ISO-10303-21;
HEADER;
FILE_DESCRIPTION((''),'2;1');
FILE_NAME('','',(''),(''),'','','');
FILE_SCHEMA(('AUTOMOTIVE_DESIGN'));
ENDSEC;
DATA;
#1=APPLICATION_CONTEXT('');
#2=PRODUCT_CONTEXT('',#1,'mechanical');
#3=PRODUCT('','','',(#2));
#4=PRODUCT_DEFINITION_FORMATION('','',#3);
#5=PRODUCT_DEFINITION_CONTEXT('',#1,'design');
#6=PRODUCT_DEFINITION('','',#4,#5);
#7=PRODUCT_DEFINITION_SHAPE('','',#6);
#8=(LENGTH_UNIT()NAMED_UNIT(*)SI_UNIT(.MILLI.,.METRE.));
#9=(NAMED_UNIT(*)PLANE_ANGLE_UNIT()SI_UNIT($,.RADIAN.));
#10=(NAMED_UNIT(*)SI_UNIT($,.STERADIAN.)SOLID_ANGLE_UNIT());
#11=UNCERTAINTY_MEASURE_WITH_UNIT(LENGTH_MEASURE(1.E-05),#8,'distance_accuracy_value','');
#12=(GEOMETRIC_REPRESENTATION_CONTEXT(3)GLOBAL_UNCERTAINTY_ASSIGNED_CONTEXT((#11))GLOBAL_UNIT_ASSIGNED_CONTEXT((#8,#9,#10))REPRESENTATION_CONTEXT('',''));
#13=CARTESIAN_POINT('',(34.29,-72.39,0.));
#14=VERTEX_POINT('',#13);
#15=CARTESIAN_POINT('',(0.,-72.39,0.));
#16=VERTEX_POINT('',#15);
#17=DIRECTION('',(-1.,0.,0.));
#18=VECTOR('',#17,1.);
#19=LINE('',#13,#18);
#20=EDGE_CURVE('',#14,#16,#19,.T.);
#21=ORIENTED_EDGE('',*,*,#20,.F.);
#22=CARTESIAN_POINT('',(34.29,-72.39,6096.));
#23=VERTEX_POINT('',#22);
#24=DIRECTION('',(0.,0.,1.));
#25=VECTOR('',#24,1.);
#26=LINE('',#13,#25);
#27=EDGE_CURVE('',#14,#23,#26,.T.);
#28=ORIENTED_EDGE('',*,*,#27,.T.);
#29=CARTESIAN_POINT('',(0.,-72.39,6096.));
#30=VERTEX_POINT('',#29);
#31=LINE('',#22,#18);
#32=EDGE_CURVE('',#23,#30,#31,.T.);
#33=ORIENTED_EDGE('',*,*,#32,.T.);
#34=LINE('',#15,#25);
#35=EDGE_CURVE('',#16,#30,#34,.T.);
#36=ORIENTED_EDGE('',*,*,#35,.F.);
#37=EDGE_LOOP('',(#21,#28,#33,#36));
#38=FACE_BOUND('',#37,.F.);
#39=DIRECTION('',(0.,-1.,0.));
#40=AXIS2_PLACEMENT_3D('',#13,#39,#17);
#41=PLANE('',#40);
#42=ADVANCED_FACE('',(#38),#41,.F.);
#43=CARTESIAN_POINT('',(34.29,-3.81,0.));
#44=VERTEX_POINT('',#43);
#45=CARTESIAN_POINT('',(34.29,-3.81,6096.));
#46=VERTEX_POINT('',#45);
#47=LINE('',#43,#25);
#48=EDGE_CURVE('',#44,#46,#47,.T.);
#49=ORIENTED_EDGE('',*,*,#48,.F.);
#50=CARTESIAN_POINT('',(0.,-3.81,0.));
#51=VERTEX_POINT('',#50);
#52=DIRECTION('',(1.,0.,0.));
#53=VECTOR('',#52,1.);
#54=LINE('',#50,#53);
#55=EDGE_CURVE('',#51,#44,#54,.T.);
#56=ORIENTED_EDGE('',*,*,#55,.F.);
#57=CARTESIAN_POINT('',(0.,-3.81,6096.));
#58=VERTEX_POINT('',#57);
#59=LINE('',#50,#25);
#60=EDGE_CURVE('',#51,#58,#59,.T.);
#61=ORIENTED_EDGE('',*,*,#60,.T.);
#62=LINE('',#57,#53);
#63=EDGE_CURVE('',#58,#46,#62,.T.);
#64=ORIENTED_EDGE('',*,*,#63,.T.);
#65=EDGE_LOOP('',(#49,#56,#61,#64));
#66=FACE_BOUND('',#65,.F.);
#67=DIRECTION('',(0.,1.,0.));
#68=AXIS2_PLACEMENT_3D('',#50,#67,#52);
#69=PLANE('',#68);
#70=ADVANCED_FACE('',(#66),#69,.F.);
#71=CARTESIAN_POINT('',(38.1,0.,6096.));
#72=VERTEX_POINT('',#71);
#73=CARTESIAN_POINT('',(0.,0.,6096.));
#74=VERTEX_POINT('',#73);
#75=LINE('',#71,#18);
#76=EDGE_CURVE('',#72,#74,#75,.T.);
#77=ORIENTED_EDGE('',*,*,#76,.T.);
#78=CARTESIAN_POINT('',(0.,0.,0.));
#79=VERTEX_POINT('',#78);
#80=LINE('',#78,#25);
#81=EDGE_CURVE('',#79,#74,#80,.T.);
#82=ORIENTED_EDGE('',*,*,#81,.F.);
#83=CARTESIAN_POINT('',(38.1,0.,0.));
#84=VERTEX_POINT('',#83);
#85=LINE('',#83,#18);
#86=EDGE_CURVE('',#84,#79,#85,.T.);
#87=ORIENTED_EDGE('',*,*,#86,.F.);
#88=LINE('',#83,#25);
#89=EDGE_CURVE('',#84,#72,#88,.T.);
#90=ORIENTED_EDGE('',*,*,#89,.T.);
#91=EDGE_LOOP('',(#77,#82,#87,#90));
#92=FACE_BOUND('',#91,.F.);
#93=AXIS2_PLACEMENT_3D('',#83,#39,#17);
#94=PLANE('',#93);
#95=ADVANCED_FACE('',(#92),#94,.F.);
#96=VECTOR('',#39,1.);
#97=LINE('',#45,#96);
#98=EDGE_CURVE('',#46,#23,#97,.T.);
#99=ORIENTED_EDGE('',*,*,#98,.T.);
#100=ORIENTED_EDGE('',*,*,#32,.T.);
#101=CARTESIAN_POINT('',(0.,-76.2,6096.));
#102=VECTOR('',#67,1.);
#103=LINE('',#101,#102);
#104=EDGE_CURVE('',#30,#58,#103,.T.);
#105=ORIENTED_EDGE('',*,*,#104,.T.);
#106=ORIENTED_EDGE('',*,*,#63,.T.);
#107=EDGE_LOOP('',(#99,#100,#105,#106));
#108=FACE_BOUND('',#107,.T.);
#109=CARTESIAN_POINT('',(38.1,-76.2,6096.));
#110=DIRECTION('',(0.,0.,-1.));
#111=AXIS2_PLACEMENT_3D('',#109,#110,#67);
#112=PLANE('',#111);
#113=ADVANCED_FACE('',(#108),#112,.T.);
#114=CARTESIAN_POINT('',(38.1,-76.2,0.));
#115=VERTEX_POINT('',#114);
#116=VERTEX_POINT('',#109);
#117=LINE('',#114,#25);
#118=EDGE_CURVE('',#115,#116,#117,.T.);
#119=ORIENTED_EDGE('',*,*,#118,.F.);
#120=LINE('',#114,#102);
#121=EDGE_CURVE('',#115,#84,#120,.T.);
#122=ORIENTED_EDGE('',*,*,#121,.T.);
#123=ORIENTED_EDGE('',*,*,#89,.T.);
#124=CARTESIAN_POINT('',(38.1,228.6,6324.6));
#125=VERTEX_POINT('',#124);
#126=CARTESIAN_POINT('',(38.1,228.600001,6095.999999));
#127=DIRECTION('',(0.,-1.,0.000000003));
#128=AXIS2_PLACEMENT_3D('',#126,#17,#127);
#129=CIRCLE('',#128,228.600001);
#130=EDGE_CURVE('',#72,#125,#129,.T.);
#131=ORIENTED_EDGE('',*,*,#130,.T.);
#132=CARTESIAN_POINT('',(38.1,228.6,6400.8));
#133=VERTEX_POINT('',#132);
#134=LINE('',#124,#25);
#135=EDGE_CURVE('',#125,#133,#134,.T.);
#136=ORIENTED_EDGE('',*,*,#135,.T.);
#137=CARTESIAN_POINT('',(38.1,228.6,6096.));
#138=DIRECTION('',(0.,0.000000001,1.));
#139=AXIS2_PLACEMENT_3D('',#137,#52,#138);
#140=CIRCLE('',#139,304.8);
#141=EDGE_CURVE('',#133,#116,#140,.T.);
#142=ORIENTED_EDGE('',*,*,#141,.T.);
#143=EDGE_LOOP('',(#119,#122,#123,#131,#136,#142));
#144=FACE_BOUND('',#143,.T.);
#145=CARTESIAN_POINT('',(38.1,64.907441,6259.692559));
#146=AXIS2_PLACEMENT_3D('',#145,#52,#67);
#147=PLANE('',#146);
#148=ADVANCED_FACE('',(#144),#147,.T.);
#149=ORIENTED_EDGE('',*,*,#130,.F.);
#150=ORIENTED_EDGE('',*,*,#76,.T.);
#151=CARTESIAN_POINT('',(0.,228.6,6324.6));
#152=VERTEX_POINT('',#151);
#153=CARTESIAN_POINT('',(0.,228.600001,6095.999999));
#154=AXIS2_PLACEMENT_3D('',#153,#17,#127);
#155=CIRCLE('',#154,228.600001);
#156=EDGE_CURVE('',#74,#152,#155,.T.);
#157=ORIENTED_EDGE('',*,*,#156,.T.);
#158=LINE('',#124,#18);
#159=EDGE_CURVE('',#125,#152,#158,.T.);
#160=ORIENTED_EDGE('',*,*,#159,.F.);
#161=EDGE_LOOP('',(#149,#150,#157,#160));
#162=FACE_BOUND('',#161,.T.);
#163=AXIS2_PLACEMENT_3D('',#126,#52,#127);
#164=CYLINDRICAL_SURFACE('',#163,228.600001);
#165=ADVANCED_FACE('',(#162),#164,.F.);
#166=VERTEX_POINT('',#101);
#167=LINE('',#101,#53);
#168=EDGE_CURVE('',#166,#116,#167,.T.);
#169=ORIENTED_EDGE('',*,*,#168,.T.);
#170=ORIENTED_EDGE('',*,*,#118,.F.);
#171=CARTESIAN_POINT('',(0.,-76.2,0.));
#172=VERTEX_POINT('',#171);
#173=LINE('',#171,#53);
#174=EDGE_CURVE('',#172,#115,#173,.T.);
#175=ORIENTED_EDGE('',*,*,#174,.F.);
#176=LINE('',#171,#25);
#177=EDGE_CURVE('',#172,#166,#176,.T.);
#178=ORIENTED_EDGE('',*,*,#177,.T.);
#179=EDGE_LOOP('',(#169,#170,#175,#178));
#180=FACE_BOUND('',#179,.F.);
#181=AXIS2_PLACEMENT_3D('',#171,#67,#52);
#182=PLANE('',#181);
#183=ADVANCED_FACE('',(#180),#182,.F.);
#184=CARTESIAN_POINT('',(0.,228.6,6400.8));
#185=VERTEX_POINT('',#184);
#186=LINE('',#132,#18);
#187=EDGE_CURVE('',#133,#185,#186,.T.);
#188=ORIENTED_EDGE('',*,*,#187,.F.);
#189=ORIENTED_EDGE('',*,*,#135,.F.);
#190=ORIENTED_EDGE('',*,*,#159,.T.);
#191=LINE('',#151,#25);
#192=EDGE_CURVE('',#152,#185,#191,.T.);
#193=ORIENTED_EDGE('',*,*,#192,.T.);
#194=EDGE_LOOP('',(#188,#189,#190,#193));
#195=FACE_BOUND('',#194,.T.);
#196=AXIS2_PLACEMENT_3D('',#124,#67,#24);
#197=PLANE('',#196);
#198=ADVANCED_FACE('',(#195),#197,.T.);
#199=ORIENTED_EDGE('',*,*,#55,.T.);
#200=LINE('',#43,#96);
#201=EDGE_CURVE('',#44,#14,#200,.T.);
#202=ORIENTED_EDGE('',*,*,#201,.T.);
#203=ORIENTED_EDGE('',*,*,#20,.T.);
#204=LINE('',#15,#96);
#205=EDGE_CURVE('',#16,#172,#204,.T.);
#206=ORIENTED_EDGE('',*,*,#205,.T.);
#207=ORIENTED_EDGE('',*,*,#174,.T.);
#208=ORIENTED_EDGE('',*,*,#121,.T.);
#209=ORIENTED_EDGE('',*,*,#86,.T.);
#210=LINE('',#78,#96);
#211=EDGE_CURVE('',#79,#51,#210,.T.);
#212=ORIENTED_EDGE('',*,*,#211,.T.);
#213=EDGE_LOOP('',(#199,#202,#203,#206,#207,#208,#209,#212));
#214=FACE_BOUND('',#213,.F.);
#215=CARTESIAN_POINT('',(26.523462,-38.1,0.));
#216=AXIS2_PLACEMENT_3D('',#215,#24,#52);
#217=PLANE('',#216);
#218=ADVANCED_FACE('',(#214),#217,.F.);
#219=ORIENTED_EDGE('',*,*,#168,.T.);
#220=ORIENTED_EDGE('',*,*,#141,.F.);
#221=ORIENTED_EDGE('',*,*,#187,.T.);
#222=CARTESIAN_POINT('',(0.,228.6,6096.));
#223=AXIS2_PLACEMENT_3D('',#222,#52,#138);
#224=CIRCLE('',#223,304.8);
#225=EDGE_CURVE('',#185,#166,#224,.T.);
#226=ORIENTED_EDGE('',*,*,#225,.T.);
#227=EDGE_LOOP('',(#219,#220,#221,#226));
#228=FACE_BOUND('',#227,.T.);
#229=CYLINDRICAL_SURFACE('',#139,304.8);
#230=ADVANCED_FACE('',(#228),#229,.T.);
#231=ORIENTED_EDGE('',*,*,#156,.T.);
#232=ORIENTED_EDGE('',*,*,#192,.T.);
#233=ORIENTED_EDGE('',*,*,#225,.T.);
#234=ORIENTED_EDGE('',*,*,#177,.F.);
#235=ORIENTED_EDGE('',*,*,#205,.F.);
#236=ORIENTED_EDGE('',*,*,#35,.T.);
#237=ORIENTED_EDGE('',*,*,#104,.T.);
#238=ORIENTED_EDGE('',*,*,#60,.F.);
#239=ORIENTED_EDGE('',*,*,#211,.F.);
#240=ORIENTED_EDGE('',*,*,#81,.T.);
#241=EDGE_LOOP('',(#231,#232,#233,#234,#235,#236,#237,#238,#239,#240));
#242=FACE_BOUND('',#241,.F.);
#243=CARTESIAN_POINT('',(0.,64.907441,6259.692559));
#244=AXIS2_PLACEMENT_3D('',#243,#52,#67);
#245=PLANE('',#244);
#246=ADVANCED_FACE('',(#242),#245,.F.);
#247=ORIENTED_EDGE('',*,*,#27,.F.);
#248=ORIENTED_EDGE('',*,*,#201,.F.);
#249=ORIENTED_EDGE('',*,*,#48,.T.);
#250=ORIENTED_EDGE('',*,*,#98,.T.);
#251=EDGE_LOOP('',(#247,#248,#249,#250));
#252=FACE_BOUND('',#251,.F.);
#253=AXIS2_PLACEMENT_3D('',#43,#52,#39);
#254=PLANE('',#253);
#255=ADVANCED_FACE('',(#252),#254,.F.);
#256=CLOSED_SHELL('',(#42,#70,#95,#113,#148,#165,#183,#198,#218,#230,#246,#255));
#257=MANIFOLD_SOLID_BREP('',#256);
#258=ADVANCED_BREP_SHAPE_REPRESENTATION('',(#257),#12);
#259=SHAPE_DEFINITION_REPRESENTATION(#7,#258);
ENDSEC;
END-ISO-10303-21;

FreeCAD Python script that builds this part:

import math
import FreeCAD as App
import Part
import Sketcher

V = App.Vector
Q = App.Units.Quantity


def add_polygon(sketch, points):
    """Adds a closed chain of lines whose ends are joined by coincident constraints."""
    first, n = sketch.GeometryCount, len(points)
    for a, b in zip(points, points[1:] + points[:1]):
        sketch.addGeometry(Part.LineSegment(App.Vector(*a, 0), App.Vector(*b, 0)), False)
    for i in range(n):
        sketch.addConstraint(Sketcher.Constraint("Coincident", first + i, 2, first + (i + 1) % n, 1))

doc = App.newDocument("Part")
body = doc.addObject("PartDesign::Body", "Body")

sketch1 = body.newObject("Sketcher::SketchObject", "Sketch")
sketch1.AttachmentSupport = (doc.getObject("XY_Plane"), [""])
sketch1.MapMode = "FlatFace"
add_polygon(sketch1, [(38.1, 0), (0, 0), (0, -3.8), (34.3, -3.8), (34.3, -72.4), (0, -72.4), (0, -76.2), (38.1, -76.2)])
sketch1.addConstraint([
    Sketcher.Constraint("Horizontal", 0),
    Sketcher.Constraint("Vertical", 1),
    Sketcher.Constraint("Horizontal", 2),
    Sketcher.Constraint("Vertical", 3),
    Sketcher.Constraint("Horizontal", 4),
    Sketcher.Constraint("Vertical", 5),
    Sketcher.Constraint("Horizontal", 6),
    Sketcher.Constraint("Vertical", 7),
    Sketcher.Constraint("Coincident", 0, 2, -1, 1),
    Sketcher.Constraint("PointOnObject", 4, 2, -2),
    Sketcher.Constraint("Equal", 1, 5),
    Sketcher.Constraint("DistanceY", 7, 1, 7, 2, Q("3 in")),
    Sketcher.Constraint("DistanceX", 0, 2, 0, 1, Q("1.5 in")),
    Sketcher.Constraint("DistanceY", 3, 2, 3, 1, Q("2.7 in")),
    Sketcher.Constraint("DistanceX", 2, 1, 2, 2, Q("1.35 in")),
])
pad1 = body.newObject("PartDesign::Pad", "Pad")
pad1.Profile = sketch1
pad1.Length = Q("240 in")

sketch2 = body.newObject("Sketcher::SketchObject", "Sketch001")
sketch2.AttachmentSupport = (doc.getObject("YZ_Plane"), [""])
sketch2.MapMode = "FlatFace"
sketch2.AttachmentOffset = App.Placement(V(0, 0, 1.5 * 25.4), App.Rotation())
sketch2.addGeometry([
    Part.ArcOfCircle(Part.Circle(V(229, 6096, 0), V(0, 0, 1), 305), math.radians(90), math.radians(180)),
    Part.LineSegment(V(-76, 6096, 0), V(0, 6096, 0)),
    Part.ArcOfCircle(Part.Circle(V(229, 6096, 0), V(0, 0, 1), 229), math.radians(90), math.radians(180)),
    Part.LineSegment(V(229, 6325, 0), V(229, 6401, 0)),
], False)
sketch2.addConstraint([
    Sketcher.Constraint("Coincident", 0, 2, 1, 1),
    Sketcher.Constraint("Coincident", 1, 2, 2, 2),
    Sketcher.Constraint("Coincident", 2, 1, 3, 1),
    Sketcher.Constraint("Coincident", 3, 2, 0, 1),
    Sketcher.Constraint("Horizontal", 1),
    Sketcher.Constraint("Vertical", 3),
    Sketcher.Constraint("Coincident", 2, 3, 0, 3),
    Sketcher.Constraint("PointOnObject", 1, 2, -2),
    Sketcher.Constraint("Horizontal", 2, 3, 0, 2),
    Sketcher.Constraint("Vertical", 0, 3, 2, 1),
    Sketcher.Constraint("Radius", 0, Q("12 in")),
    Sketcher.Constraint("Radius", 2, Q("9 in")),
    Sketcher.Constraint("DistanceY", -1, 1, 0, 3, Q("240 in")),
])
pad2 = body.newObject("PartDesign::Pad", "Pad001")
pad2.Profile = sketch2
pad2.Length = Q("1.5 in")
pad2.Reversed = True

doc.recompute()
